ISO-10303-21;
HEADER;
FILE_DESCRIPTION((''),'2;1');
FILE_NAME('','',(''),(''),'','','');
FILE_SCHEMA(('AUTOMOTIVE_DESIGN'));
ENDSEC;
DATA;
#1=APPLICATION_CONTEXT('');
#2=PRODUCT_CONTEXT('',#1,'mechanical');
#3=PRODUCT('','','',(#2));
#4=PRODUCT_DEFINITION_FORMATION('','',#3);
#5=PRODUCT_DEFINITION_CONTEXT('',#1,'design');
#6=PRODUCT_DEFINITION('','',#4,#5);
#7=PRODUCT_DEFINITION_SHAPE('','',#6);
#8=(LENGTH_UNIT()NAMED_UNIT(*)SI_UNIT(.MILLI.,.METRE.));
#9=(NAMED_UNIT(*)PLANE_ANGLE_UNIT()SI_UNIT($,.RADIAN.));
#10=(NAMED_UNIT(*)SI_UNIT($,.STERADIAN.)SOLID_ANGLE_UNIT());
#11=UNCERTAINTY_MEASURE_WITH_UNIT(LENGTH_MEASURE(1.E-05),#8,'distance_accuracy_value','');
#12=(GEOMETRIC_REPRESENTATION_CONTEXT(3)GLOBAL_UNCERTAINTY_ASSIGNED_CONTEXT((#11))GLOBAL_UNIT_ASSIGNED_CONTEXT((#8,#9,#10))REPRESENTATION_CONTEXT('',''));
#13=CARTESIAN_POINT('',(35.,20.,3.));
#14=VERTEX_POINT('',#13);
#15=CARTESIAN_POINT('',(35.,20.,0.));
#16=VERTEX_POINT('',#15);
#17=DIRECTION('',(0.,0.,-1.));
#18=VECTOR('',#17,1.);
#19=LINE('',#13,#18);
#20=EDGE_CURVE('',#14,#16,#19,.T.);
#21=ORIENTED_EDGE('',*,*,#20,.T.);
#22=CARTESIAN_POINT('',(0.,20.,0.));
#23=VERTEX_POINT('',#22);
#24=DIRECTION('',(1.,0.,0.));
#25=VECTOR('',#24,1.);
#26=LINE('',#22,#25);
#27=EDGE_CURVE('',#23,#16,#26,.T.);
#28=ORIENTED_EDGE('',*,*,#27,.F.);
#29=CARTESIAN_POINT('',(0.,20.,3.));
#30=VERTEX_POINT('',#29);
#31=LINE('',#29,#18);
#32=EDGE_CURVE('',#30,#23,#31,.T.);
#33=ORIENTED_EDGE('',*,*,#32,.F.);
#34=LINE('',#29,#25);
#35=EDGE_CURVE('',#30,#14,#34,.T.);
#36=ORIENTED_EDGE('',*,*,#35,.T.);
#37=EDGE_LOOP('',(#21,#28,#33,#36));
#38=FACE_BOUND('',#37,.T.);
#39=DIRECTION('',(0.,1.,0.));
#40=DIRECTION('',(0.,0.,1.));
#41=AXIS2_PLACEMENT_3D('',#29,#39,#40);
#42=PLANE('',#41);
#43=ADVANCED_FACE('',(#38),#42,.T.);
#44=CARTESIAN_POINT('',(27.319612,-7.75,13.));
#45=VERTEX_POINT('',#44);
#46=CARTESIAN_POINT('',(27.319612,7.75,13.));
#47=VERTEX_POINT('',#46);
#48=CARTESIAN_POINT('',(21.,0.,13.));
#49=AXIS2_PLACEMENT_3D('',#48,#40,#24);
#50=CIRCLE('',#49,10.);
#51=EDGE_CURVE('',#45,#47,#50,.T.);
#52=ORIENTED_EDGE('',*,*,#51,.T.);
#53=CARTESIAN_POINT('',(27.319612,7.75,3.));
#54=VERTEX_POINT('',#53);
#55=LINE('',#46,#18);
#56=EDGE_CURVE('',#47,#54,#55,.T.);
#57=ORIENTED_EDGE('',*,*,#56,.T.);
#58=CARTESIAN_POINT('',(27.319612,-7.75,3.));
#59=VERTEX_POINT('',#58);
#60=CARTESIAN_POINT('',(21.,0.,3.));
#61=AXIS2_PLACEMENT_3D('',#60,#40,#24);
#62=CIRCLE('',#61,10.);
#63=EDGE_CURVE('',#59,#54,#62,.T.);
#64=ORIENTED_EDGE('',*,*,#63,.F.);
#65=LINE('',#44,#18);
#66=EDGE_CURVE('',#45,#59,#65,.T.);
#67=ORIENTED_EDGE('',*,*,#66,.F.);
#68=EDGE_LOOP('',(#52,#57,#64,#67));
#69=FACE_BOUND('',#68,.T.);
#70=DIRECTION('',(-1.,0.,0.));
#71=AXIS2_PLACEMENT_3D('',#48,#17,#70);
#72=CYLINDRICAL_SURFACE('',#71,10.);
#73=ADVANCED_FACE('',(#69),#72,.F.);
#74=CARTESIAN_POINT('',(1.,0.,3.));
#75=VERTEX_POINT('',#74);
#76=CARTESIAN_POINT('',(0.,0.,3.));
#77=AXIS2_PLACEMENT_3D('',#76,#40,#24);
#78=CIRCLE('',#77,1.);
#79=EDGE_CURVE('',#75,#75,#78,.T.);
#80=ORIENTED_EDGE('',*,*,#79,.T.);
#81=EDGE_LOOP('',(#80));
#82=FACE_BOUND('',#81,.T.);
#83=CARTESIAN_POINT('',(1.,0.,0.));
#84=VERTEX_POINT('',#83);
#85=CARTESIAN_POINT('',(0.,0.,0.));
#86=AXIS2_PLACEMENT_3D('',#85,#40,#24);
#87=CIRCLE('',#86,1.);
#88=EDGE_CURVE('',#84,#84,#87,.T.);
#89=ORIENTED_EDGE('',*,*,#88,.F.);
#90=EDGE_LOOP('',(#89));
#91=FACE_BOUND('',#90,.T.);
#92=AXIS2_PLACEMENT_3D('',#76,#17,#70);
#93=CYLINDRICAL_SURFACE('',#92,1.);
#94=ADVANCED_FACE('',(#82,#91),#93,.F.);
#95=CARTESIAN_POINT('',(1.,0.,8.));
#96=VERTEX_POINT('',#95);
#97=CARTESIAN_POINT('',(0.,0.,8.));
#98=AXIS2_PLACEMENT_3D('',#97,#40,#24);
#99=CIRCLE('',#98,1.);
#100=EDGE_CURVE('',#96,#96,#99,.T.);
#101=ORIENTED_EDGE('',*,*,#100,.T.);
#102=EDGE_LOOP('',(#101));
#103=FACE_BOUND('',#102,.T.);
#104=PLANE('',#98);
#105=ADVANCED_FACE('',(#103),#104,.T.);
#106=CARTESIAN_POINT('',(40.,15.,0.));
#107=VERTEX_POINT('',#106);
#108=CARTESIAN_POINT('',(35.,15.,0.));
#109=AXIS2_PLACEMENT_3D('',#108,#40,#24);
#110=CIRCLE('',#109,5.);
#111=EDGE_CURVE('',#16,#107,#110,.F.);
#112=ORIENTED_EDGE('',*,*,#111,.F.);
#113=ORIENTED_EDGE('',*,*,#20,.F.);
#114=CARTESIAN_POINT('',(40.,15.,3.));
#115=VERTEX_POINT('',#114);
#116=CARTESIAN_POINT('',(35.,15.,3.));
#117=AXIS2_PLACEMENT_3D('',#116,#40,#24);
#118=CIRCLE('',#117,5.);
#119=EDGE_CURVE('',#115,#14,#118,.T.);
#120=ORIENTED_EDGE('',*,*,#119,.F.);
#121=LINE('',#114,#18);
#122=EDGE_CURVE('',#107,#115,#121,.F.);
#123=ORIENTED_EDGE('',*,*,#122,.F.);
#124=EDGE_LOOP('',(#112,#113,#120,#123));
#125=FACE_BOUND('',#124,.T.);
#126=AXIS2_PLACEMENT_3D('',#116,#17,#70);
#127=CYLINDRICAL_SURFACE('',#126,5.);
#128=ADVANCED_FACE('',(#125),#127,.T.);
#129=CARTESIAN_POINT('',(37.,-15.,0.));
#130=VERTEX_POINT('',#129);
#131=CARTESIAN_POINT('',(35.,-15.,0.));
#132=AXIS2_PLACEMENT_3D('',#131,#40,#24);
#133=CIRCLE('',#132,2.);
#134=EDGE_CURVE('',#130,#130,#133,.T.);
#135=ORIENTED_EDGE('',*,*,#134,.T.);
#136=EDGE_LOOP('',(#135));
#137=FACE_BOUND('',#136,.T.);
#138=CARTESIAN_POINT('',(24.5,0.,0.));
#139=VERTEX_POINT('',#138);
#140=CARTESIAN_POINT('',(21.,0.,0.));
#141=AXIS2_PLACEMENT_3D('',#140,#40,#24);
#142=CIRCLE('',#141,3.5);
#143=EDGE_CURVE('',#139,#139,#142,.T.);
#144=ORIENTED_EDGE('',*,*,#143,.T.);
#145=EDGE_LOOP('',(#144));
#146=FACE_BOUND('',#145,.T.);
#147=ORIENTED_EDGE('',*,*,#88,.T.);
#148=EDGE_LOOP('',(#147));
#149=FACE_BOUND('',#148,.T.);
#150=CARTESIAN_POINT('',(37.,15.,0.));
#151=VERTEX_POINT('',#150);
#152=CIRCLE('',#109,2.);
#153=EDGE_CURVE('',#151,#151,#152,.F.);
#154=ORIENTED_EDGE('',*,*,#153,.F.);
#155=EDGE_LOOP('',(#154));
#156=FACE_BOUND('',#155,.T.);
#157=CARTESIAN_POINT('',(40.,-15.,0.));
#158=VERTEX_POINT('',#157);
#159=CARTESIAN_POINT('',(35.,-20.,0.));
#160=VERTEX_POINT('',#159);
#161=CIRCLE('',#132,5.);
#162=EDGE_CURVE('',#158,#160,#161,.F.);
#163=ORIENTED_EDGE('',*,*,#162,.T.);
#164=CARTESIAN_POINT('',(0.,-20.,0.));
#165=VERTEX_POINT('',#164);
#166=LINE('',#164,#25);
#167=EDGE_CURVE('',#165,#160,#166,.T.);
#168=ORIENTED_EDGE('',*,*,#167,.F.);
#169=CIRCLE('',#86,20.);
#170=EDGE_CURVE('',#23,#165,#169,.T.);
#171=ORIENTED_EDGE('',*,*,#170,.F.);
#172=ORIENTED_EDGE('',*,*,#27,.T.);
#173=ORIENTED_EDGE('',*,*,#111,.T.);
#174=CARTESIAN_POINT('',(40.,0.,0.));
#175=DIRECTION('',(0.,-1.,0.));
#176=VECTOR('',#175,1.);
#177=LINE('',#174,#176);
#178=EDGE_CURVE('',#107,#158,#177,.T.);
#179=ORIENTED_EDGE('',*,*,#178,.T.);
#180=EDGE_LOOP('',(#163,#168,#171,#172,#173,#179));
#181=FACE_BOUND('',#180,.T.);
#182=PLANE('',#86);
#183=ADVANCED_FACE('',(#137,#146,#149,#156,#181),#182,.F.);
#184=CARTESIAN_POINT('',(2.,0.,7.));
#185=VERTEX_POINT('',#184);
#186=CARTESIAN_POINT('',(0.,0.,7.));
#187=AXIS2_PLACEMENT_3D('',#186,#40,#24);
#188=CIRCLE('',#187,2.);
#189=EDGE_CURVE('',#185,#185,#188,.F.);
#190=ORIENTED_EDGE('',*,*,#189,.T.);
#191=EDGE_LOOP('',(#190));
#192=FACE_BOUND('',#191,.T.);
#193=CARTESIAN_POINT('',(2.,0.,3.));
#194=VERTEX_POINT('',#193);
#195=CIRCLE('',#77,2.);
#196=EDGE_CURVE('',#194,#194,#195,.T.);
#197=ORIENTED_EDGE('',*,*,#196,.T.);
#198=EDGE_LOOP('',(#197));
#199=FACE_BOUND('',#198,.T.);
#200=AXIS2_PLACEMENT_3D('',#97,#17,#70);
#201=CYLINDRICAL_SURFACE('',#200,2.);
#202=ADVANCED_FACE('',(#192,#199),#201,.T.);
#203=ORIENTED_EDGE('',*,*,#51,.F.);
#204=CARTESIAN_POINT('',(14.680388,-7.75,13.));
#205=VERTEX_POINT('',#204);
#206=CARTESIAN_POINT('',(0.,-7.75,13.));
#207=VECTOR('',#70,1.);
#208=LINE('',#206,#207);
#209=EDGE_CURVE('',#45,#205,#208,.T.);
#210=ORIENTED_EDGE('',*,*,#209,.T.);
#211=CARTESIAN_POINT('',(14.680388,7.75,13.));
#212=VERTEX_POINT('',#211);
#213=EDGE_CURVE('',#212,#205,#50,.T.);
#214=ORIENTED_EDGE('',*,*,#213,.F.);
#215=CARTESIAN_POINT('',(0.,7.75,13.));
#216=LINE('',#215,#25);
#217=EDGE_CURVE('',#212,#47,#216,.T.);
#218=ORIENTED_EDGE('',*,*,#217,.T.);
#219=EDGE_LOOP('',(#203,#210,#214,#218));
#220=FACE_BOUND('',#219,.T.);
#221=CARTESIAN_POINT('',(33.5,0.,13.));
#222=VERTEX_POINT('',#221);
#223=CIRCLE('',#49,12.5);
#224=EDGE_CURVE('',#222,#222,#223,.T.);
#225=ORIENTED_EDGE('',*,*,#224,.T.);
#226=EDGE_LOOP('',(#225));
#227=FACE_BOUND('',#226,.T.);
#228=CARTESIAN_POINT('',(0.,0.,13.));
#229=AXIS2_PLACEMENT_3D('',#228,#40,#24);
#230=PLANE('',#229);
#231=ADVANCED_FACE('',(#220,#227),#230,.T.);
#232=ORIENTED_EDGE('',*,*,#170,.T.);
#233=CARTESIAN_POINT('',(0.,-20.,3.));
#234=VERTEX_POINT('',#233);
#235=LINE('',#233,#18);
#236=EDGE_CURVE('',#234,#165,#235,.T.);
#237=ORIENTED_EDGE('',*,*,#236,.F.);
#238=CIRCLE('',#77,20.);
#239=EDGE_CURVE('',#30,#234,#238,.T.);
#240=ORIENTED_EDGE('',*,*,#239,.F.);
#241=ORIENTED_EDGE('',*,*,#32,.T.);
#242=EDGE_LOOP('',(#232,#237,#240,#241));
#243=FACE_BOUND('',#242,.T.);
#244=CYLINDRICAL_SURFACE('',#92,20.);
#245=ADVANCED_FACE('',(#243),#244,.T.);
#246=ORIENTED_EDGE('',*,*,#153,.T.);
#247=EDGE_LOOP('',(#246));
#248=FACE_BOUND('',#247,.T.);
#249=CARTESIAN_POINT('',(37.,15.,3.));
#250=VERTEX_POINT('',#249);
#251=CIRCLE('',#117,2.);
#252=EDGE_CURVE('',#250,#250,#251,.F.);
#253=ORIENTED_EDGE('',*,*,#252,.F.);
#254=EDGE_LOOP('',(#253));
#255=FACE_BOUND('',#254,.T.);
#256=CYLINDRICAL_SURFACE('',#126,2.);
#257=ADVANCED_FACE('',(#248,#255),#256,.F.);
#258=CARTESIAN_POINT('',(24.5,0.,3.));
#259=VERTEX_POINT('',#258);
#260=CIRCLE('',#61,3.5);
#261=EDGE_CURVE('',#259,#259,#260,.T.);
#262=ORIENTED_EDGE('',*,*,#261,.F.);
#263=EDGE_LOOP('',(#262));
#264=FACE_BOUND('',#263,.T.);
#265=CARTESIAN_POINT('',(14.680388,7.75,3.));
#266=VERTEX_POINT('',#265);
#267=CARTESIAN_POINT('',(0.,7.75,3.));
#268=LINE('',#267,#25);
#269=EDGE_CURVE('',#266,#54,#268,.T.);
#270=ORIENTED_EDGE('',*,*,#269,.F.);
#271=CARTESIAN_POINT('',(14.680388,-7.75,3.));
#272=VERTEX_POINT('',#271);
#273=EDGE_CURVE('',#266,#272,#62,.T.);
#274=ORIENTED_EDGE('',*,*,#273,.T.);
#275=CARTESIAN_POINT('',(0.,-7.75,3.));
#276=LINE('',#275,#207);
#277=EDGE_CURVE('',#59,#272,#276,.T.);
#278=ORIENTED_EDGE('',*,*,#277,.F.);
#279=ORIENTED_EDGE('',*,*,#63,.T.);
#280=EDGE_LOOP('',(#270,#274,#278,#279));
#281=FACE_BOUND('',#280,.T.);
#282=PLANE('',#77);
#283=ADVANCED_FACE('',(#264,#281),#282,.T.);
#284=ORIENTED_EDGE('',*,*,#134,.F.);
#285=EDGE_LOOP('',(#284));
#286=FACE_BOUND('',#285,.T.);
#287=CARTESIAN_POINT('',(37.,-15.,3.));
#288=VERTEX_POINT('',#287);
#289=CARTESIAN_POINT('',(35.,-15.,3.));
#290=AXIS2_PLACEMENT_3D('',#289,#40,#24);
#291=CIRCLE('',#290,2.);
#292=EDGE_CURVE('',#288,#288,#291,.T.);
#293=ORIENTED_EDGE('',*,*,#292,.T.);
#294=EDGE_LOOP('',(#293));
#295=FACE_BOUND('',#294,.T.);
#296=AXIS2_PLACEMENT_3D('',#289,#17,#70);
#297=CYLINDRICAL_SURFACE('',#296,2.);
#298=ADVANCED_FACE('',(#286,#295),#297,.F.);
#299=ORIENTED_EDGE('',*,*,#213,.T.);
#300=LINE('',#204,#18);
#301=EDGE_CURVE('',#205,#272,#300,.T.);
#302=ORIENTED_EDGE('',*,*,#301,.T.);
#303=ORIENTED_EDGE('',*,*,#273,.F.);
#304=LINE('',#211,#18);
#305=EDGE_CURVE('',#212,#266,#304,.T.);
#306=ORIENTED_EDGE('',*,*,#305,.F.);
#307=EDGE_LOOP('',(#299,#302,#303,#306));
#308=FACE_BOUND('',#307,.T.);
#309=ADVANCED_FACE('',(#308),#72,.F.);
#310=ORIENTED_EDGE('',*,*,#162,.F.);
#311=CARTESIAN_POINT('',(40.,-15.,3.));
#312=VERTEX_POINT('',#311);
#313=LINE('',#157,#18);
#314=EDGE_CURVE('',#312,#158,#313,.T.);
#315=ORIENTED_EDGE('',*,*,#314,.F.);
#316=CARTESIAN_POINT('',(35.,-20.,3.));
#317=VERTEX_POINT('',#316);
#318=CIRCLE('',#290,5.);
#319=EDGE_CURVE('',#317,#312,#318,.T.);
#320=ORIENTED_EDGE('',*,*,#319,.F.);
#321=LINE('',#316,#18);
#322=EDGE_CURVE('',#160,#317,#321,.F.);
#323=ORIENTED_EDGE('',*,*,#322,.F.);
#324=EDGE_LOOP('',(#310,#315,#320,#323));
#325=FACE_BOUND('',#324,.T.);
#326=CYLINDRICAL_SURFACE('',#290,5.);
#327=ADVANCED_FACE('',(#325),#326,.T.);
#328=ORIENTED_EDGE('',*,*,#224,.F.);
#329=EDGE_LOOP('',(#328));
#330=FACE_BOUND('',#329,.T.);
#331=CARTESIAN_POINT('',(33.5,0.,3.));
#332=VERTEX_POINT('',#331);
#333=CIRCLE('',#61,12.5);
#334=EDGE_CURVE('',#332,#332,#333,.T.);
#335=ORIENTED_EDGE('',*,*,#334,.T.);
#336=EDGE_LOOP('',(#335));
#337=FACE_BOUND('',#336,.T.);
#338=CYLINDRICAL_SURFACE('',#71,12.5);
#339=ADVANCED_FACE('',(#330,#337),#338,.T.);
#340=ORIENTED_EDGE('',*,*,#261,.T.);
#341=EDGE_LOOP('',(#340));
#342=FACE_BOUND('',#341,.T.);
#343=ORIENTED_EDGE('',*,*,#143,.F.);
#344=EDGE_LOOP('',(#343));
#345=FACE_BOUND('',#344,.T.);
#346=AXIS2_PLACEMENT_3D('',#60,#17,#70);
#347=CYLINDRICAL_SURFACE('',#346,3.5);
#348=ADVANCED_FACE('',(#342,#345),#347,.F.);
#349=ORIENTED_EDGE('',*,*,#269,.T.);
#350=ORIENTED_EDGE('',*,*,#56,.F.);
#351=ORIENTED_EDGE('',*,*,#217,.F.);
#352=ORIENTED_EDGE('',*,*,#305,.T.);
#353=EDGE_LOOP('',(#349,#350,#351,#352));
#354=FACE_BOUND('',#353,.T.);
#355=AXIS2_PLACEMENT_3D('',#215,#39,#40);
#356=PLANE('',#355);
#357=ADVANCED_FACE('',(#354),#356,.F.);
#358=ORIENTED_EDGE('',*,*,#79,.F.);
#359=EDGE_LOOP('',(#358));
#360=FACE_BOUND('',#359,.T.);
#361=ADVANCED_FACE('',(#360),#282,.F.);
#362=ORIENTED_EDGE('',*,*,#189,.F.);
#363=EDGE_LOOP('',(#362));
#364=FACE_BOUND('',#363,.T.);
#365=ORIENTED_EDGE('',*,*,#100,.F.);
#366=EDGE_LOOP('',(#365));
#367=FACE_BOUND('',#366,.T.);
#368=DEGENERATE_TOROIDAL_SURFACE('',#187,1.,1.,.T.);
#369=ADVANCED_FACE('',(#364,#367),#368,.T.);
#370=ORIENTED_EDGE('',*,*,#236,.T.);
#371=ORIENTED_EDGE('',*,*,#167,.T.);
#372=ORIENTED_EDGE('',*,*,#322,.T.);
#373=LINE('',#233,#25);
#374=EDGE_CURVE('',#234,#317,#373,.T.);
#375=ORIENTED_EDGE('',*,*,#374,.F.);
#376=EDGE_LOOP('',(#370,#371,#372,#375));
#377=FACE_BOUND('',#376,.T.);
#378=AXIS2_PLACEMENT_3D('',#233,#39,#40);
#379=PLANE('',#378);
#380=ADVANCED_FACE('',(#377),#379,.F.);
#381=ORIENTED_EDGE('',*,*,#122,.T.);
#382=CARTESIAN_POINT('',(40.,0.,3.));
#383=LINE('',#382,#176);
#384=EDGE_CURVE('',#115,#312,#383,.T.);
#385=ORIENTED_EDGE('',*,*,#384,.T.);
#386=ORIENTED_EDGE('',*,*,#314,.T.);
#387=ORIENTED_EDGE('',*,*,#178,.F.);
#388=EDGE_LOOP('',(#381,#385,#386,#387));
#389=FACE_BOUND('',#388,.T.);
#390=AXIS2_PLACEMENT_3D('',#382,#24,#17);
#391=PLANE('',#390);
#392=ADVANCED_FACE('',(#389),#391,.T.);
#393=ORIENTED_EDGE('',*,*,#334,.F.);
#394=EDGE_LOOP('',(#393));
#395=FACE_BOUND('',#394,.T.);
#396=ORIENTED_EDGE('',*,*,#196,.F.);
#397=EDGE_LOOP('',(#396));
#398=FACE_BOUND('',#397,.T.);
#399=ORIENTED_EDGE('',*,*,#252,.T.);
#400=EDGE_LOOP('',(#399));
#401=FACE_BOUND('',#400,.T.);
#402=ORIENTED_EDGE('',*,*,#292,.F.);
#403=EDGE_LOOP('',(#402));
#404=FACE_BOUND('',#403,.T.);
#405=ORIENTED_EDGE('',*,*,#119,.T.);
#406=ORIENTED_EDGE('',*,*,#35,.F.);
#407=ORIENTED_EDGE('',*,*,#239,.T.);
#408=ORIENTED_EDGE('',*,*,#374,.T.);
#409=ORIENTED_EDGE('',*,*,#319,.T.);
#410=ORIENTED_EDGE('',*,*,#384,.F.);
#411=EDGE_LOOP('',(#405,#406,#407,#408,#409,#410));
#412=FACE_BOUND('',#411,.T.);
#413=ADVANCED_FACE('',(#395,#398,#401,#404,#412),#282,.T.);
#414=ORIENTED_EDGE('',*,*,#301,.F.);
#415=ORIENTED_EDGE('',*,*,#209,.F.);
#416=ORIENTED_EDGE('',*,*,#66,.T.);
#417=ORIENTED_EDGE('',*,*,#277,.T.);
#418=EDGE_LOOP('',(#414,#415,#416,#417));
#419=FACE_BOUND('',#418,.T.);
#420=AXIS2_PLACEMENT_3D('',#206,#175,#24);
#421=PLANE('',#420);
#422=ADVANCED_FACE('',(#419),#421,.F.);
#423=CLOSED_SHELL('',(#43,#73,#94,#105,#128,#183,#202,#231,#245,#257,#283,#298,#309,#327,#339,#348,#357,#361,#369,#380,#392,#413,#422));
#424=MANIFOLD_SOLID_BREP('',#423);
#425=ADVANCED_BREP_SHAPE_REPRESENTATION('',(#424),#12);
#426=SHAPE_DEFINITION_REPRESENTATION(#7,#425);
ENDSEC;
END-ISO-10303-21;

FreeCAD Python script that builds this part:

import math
import FreeCAD as App
import Part
import Sketcher
from FreeCAD import Vector


def edges_at(feature, points):
    """Names of the edges that pass closest to the given points."""
    edges = feature.Shape.Edges
    near = lambda p: min(range(len(edges)), key=lambda i: edges[i].distToShape(Part.Vertex(*p))[0])
    return sorted({f"Edge{near(p) + 1}" for p in points})

doc = App.newDocument("Part")
body = doc.addObject("PartDesign::Body", "Body")

# Sketch on XY plane
sketch1 = body.newObject("Sketcher::SketchObject", "Sketch")
sketch1.AttachmentSupport = (doc.getObject("XY_Plane"), [""])
sketch1.MapMode = "FlatFace"
sketch1.addGeometry([
    Part.ArcOfCircle(Part.Circle(Vector(0, 0, 0), Vector(0, 0, 1), 20), math.radians(90), math.radians(270)),  # 0
    Part.LineSegment(Vector(0, -20, 0), Vector(40, -20, 0)),  # 1
    Part.LineSegment(Vector(40, -20, 0), Vector(40, 20, 0)),  # 2
    Part.LineSegment(Vector(40, 20, 0), Vector(0, 20, 0)),  # 3
    Part.Circle(Vector(35, -15, 0), Vector(0, 0, 1), 2),  # 4
    Part.Circle(Vector(0, 0, 0), Vector(0, 0, 1), 1),  # 5
    Part.Circle(Vector(21, 0, 0), Vector(0, 0, 1), 3.5),  # 6
    Part.Circle(Vector(35, 15, 0), Vector(0, 0, 1), 2),  # 7
], False)
sketch1.addConstraint([
    Sketcher.Constraint("Tangent", 0, 2, 1, 1),
    Sketcher.Constraint("Coincident", 1, 2, 2, 1),
    Sketcher.Constraint("Coincident", 2, 2, 3, 1),
    Sketcher.Constraint("Tangent", 3, 2, 0, 1),
    Sketcher.Constraint("Horizontal", 1),
    Sketcher.Constraint("Vertical", 2),
    Sketcher.Constraint("Horizontal", 3),
    Sketcher.Constraint("Coincident", 0, 3, -1, 1),
    Sketcher.Constraint("Coincident", 5, 3, -1, 1),
    Sketcher.Constraint("Equal", 4, 7),
    Sketcher.Constraint("Symmetric", 4, 3, 7, 3, -1),
    Sketcher.Constraint("PointOnObject", 6, 3, -1),
    Sketcher.Constraint("Equal", 3, 2),
    Sketcher.Constraint("Diameter", 4, 4.0),
    Sketcher.Constraint("Diameter", 5, 2.0),
    Sketcher.Constraint("Diameter", 6, 7.0),
    Sketcher.Constraint("Radius", 0, 20.0),
    Sketcher.Constraint("DistanceX", -1, 1, 4, 3, 35.0),
    Sketcher.Constraint("DistanceY", 4, 3, -1, 1, 15.0),
    Sketcher.Constraint("DistanceX", -1, 1, 6, 3, 21.0),
])
pad1 = body.newObject("PartDesign::Pad", "Pad")
pad1.Profile = sketch1
pad1.Length = 3
doc.recompute()

fillet = body.newObject("PartDesign::Fillet", "Fillet")
fillet.Base = (pad1, edges_at(pad1, [(40, 20, 1.5), (40, -20, 1.5)]))
fillet.Radius = 5

# Sketch on XY plane
sketch2 = body.newObject("Sketcher::SketchObject", "Sketch001")
sketch2.AttachmentSupport = (doc.getObject("XY_Plane"), [""])
sketch2.MapMode = "FlatFace"
sketch2.AttachmentOffset = App.Placement(Vector(0, 0, 3), App.Rotation())
sketch2.addGeometry([
    Part.Circle(Vector(21, 0, 0), Vector(0, 0, 1), 12.5),  # 0
    Part.ArcOfCircle(Part.Circle(Vector(21, 0, 0), Vector(0, 0, 1), 10), math.radians(-50.805033), math.radians(50.805033)),  # 1
    Part.LineSegment(Vector(27.319612, -7.75, 0), Vector(14.680388, -7.75, 0)),  # 2
    Part.ArcOfCircle(Part.Circle(Vector(21, 0, 0), Vector(0, 0, 1), 10), math.radians(129.194967), math.radians(230.805033)),  # 3
    Part.LineSegment(Vector(14.680388, 7.75, 0), Vector(27.319612, 7.75, 0)),  # 4
], False)
sketch2.addConstraint([
    Sketcher.Constraint("Coincident", 1, 1, 2, 1),
    Sketcher.Constraint("Coincident", 2, 2, 3, 2),
    Sketcher.Constraint("Coincident", 3, 1, 4, 1),
    Sketcher.Constraint("Coincident", 4, 2, 1, 2),
    Sketcher.Constraint("Horizontal", 2),
    Sketcher.Constraint("Horizontal", 4),
    Sketcher.Constraint("Coincident", 1, 3, 0, 3),
    Sketcher.Constraint("Coincident", 3, 3, 0, 3),
    Sketcher.Constraint("Equal", 1, 3),
    Sketcher.Constraint("Symmetric", 2, 2, 3, 1, -1),
    Sketcher.Constraint("Diameter", 0, 25.0),
    Sketcher.Constraint("Radius", 1, 10.0),
    Sketcher.Constraint("DistanceX", -1, 1, 0, 3, 21.0),
    Sketcher.Constraint("DistanceY", 2, 2, 3, 1, 15.5),
])
pad2 = body.newObject("PartDesign::Pad", "Pad001")
pad2.Profile = sketch2
pad2.Length = 10

# Sketch on XY plane
sketch3 = body.newObject("Sketcher::SketchObject", "Sketch002")
sketch3.AttachmentSupport = (doc.getObject("XY_Plane"), [""])
sketch3.MapMode = "FlatFace"
sketch3.AttachmentOffset = App.Placement(Vector(0, 0, 3), App.Rotation())
sketch3.addGeometry(Part.Circle(Vector(0, 0, 0), Vector(0, 0, 1), 2), False)
sketch3.addConstraint([
    Sketcher.Constraint("Coincident", 0, 3, -1, 1),
    Sketcher.Constraint("Diameter", 0, 4.0),
])
pad3 = body.newObject("PartDesign::Pad", "Pad002")
pad3.Profile = sketch3
pad3.Length = 5
doc.recompute()

fillet2 = body.newObject("PartDesign::Fillet", "Fillet001")
fillet2.Base = (pad3, edges_at(pad3, [(-2, 0, 8)]))
fillet2.Radius = 1

doc.recompute()
